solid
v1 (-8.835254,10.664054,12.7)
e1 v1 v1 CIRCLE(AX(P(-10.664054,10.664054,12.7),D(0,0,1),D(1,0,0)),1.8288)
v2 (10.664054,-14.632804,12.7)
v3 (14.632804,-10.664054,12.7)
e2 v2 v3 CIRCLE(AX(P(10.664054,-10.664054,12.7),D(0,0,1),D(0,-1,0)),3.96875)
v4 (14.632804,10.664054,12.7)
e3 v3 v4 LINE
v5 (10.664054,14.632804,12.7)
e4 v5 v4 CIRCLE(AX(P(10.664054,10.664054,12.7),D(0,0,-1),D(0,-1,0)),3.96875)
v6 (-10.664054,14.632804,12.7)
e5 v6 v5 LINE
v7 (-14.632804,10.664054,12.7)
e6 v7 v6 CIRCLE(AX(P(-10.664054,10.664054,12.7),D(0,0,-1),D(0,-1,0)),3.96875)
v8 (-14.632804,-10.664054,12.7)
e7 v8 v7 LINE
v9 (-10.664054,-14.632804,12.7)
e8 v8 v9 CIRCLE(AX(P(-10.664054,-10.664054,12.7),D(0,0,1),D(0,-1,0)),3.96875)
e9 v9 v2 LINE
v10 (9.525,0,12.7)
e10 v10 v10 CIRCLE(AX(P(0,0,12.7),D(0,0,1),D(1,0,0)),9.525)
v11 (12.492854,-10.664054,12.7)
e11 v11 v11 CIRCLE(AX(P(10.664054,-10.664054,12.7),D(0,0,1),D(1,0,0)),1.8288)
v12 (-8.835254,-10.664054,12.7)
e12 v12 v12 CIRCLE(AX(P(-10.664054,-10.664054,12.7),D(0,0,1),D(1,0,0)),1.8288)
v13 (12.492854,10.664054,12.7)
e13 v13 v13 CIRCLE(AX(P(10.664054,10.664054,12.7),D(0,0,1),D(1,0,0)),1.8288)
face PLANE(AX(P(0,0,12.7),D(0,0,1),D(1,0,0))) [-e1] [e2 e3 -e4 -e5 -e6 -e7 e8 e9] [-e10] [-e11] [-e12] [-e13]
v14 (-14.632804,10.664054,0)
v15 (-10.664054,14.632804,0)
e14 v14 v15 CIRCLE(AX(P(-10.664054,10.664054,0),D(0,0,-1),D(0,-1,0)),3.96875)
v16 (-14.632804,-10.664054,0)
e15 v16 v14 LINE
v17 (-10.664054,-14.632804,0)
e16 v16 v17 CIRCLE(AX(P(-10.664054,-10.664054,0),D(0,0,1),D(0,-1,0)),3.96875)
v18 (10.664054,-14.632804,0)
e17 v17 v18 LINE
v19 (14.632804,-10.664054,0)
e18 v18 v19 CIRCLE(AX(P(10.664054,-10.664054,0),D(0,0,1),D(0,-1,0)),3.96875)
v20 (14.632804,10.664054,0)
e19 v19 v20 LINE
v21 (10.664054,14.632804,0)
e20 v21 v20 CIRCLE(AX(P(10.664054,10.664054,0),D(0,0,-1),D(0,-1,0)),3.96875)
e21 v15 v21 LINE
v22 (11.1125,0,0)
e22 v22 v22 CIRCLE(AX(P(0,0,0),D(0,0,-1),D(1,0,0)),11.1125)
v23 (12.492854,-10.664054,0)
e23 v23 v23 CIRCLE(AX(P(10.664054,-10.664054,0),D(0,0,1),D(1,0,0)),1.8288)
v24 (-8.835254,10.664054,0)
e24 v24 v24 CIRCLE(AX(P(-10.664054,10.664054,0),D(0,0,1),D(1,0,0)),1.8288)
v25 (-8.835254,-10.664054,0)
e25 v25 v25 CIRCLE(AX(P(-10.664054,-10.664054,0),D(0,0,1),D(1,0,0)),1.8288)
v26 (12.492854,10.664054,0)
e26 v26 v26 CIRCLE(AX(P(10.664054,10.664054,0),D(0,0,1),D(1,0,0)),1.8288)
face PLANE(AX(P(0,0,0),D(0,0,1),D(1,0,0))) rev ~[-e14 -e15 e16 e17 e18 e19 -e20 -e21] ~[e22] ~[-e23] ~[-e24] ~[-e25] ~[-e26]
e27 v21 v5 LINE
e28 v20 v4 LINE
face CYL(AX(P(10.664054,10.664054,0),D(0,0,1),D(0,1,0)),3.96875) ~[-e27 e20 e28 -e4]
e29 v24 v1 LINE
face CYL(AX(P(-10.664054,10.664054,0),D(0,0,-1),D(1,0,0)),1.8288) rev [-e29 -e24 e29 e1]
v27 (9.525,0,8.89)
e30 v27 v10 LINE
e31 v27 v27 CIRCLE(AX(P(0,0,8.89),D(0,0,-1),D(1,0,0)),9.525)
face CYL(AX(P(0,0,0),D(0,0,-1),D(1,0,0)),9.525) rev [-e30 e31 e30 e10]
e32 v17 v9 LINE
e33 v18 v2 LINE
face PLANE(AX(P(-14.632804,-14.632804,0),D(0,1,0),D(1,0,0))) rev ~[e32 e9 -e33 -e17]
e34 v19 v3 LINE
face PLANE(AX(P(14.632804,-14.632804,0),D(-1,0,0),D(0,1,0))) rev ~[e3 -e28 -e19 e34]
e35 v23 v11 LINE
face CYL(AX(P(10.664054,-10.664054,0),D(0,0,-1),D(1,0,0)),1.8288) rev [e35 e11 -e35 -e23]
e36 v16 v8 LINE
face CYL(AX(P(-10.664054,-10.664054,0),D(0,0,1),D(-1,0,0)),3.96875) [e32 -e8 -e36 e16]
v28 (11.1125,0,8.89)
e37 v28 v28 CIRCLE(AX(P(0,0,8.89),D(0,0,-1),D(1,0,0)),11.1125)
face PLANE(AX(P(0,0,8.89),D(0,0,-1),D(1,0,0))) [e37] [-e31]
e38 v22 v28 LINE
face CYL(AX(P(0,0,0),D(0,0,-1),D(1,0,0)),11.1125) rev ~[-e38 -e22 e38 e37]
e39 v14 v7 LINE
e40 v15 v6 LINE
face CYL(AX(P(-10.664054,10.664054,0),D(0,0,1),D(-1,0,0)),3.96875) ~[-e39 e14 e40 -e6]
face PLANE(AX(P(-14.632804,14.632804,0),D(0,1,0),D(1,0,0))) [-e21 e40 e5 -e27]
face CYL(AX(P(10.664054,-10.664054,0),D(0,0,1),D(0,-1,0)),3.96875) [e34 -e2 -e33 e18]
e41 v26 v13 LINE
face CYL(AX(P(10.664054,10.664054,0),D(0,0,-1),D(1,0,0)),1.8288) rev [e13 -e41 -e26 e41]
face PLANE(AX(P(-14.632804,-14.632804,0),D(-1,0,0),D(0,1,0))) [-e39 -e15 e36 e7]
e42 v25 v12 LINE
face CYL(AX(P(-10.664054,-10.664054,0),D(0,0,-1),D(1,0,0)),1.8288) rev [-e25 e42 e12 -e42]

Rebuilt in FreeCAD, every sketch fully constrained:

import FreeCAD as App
import Part
import Sketcher
from FreeCAD import Vector
Q = App.Units.Quantity


def edges_at(feature, points):
    """Names of the edges that pass closest to the given points."""
    edges = feature.Shape.Edges
    near = lambda p: min(range(len(edges)), key=lambda i: edges[i].distToShape(Part.Vertex(*p))[0])
    return sorted({f"Edge{near(p) + 1}" for p in points})


def add_polygon(sketch, points):
    """Adds a closed chain of lines whose ends are joined by coincident constraints."""
    first, n = sketch.GeometryCount, len(points)
    for a, b in zip(points, points[1:] + points[:1]):
        sketch.addGeometry(Part.LineSegment(App.Vector(*a, 0), App.Vector(*b, 0)), False)
    for i in range(n):
        sketch.addConstraint(Sketcher.Constraint("Coincident", first + i, 2, first + (i + 1) % n, 1))

doc = App.newDocument("Part")
body = doc.addObject("PartDesign::Body", "Body")

sketch1 = body.newObject("Sketcher::SketchObject", "Sketch")
sketch1.AttachmentSupport = (doc.getObject("XY_Plane"), [""])
sketch1.MapMode = "FlatFace"
add_polygon(sketch1, [(-14.6, 14.6), (-14.6, -14.6), (14.6, -14.6), (14.6, 14.6)])
sketch1.addGeometry(Part.Circle(Vector(-10.7, -10.7, 0), Vector(0, 0, 1), 1.8), False)
sketch1.addGeometry(Part.Circle(Vector(0, 0, 0), Vector(0, 0, 1), 9.5), False)
sketch1.addGeometry(Part.Circle(Vector(10.7, -10.7, 0), Vector(0, 0, 1), 1.8), False)
sketch1.addGeometry(Part.Circle(Vector(-10.7, 10.7, 0), Vector(0, 0, 1), 1.8), False)
sketch1.addGeometry(Part.Circle(Vector(10.7, 10.7, 0), Vector(0, 0, 1), 1.8), False)
sketch1.addConstraint([
    Sketcher.Constraint("Vertical", 0),
    Sketcher.Constraint("Horizontal", 1),
    Sketcher.Constraint("Vertical", 2),
    Sketcher.Constraint("Horizontal", 3),
    Sketcher.Constraint("Coincident", 5, 3, -1, 1),
    Sketcher.Constraint("Equal", 4, 6),
    Sketcher.Constraint("Equal", 6, 7),
    Sketcher.Constraint("Equal", 7, 8),
    Sketcher.Constraint("Symmetric", 6, 3, 7, 3, -1, 1),
    Sketcher.Constraint("Symmetric", 4, 3, 8, 3, -1, 1),
    Sketcher.Constraint("Symmetric", 0, 2, 2, 2, -1, 1),
    Sketcher.Constraint("Symmetric", 4, 3, 6, 3, -2),
    Sketcher.Constraint("Equal", 3, 0),
    Sketcher.Constraint("Diameter", 5, Q("0.75 in")),
    Sketcher.Constraint("Diameter", 4, Q("0.144 in")),
    Sketcher.Constraint("DistanceX", 0, 2, 4, 3, Q("0.15625 in")),
    Sketcher.Constraint("DistanceY", 0, 2, 4, 3, Q("0.15625 in")),
    Sketcher.Constraint("DistanceX", 1, 1, 1, 2, 29.265608),
])
pad1 = body.newObject("PartDesign::Pad", "Pad")
pad1.Profile = sketch1
pad1.Length = Q("0.5 in")
doc.recompute()

fillet = body.newObject("PartDesign::Fillet", "Fillet")
fillet.Base = (pad1, edges_at(pad1, [
    (-14.633, 14.633, 6.35),
    (-14.633, -14.633, 6.35),
    (14.633, -14.633, 6.35),
    (14.633, 14.633, 6.35),
]))
fillet.Radius = Q("0.15625 in")

sketch2 = body.newObject("Sketcher::SketchObject", "Sketch001")
sketch2.AttachmentSupport = (doc.getObject("XY_Plane"), [""])
sketch2.MapMode = "FlatFace"
sketch2.addGeometry(Part.Circle(Vector(0, 0, 0), Vector(0, 0, 1), 11), False)
sketch2.addConstraint([
    Sketcher.Constraint("Coincident", 0, 3, -1, 1),
    Sketcher.Constraint("Diameter", 0, Q("0.875 in")),
])
pocket1 = body.newObject("PartDesign::Pocket", "Pocket")
pocket1.Profile = sketch2
pocket1.Length = Q("0.35 in")
pocket1.Reversed = True

doc.recompute()
